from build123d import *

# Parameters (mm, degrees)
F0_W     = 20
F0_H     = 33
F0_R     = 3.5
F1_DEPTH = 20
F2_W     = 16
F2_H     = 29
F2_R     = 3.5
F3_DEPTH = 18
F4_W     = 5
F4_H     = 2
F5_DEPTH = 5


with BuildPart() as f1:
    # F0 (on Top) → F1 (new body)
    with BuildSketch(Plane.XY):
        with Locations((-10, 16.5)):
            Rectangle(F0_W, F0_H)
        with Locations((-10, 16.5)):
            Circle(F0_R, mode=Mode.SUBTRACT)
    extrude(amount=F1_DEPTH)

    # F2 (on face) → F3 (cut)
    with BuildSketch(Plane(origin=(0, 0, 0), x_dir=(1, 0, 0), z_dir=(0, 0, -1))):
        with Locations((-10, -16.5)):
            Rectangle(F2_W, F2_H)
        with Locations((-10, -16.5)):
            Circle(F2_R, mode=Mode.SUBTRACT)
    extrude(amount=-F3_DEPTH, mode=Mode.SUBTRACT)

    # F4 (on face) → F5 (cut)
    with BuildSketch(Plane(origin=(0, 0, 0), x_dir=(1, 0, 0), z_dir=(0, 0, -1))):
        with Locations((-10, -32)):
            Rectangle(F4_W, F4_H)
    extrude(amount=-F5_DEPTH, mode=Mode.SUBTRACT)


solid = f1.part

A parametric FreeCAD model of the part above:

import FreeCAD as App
import Part
import Sketcher


def add_polygon(sketch, points):
    """Adds a closed chain of lines whose ends are joined by coincident constraints."""
    first, n = sketch.GeometryCount, len(points)
    for a, b in zip(points, points[1:] + points[:1]):
        sketch.addGeometry(Part.LineSegment(App.Vector(*a, 0), App.Vector(*b, 0)), False)
    for i in range(n):
        sketch.addConstraint(Sketcher.Constraint("Coincident", first + i, 2, first + (i + 1) % n, 1))

doc = App.newDocument("Part")
body = doc.addObject("PartDesign::Body", "Body")

# Sketch on XY plane
sketch1 = doc.addObject("Sketcher::SketchObject", "Sketch")
body.addObject(sketch1)
sketch1.AttachmentSupport = (doc.XY_Plane, [""])
sketch1.MapMode = "FlatFace"
add_polygon(sketch1, [(-20, 33), (-20, 0), (0, 0), (0, 33)])  # lines 0-3
sketch1.addGeometry(Part.Circle(App.Vector(-10, 16.5, 0), App.Vector(0, 0, 1), 3.5), False)  # 4
sketch1.addConstraint(Sketcher.Constraint("Vertical", 0))
sketch1.addConstraint(Sketcher.Constraint("Horizontal", 1))
sketch1.addConstraint(Sketcher.Constraint("Vertical", 2))
sketch1.addConstraint(Sketcher.Constraint("Horizontal", 3))
sketch1.addConstraint(Sketcher.Constraint("Coincident", 1, 2, -1, 1))
sketch1.addConstraint(Sketcher.Constraint("Diameter", 4, 7.0))
sketch1.addConstraint(Sketcher.Constraint("DistanceX", 1, 1, 1, 2, 20.0))
sketch1.addConstraint(Sketcher.Constraint("DistanceY", 0, 2, 0, 1, 33.0))
sketch1.addConstraint(Sketcher.Constraint("DistanceX", 4, 3, -1, 1, 10.0))
sketch1.addConstraint(Sketcher.Constraint("DistanceY", -1, 1, 4, 3, 16.5))
pad1 = doc.addObject("PartDesign::Pad", "Pad")
body.addObject(pad1)
pad1.Profile = sketch1
pad1.Length = 20

# Sketch on XY plane
sketch2 = doc.addObject("Sketcher::SketchObject", "Sketch001")
body.addObject(sketch2)
sketch2.AttachmentSupport = (doc.XY_Plane, [""])
sketch2.MapMode = "FlatFace"
add_polygon(sketch2, [(-18, 2), (-18, 31), (-2, 31), (-2, 2)])  # lines 0-3
sketch2.addGeometry(Part.Circle(App.Vector(-10, 16.5, 0), App.Vector(0, 0, 1), 3.5), False)  # 4
sketch2.addConstraint(Sketcher.Constraint("Vertical", 0))
sketch2.addConstraint(Sketcher.Constraint("Horizontal", 1))
sketch2.addConstraint(Sketcher.Constraint("Vertical", 2))
sketch2.addConstraint(Sketcher.Constraint("Horizontal", 3))
sketch2.addConstraint(Sketcher.Constraint("Diameter", 4, 7.0))
sketch2.addConstraint(Sketcher.Constraint("DistanceX", 1, 1, 1, 2, 16.0))
sketch2.addConstraint(Sketcher.Constraint("DistanceY", 0, 1, 0, 2, 29.0))
sketch2.addConstraint(Sketcher.Constraint("DistanceX", 4, 3, -1, 1, 10.0))
sketch2.addConstraint(Sketcher.Constraint("DistanceX", 0, 2, -1, 1, 18.0))
sketch2.addConstraint(Sketcher.Constraint("DistanceY", -1, 1, 0, 2, 31.0))
sketch2.addConstraint(Sketcher.Constraint("DistanceY", -1, 1, 4, 3, 16.5))
pocket1 = doc.addObject("PartDesign::Pocket", "Pocket")
body.addObject(pocket1)
pocket1.Profile = sketch2
pocket1.Length = 18
pocket1.Reversed = True

# Sketch on XY plane
sketch3 = doc.addObject("Sketcher::SketchObject", "Sketch002")
body.addObject(sketch3)
sketch3.AttachmentSupport = (doc.XY_Plane, [""])
sketch3.MapMode = "FlatFace"
add_polygon(sketch3, [(-12.5, 31), (-12.5, 33), (-7.5, 33), (-7.5, 31)])  # lines 0-3
sketch3.addConstraint(Sketcher.Constraint("Vertical", 0))
sketch3.addConstraint(Sketcher.Constraint("Horizontal", 1))
sketch3.addConstraint(Sketcher.Constraint("Vertical", 2))
sketch3.addConstraint(Sketcher.Constraint("Horizontal", 3))
sketch3.addConstraint(Sketcher.Constraint("DistanceX", 1, 1, 1, 2, 5.0))
sketch3.addConstraint(Sketcher.Constraint("DistanceY", 0, 1, 0, 2, 2.0))
sketch3.addConstraint(Sketcher.Constraint("DistanceY", -1, 1, 0, 2, 33.0))
sketch3.addConstraint(Sketcher.Constraint("DistanceX", 0, 2, -1, 1, 12.5))
pocket2 = doc.addObject("PartDesign::Pocket", "Pocket001")
body.addObject(pocket2)
pocket2.Profile = sketch3
pocket2.Length = 5
pocket2.Reversed = True

doc.recompute()
